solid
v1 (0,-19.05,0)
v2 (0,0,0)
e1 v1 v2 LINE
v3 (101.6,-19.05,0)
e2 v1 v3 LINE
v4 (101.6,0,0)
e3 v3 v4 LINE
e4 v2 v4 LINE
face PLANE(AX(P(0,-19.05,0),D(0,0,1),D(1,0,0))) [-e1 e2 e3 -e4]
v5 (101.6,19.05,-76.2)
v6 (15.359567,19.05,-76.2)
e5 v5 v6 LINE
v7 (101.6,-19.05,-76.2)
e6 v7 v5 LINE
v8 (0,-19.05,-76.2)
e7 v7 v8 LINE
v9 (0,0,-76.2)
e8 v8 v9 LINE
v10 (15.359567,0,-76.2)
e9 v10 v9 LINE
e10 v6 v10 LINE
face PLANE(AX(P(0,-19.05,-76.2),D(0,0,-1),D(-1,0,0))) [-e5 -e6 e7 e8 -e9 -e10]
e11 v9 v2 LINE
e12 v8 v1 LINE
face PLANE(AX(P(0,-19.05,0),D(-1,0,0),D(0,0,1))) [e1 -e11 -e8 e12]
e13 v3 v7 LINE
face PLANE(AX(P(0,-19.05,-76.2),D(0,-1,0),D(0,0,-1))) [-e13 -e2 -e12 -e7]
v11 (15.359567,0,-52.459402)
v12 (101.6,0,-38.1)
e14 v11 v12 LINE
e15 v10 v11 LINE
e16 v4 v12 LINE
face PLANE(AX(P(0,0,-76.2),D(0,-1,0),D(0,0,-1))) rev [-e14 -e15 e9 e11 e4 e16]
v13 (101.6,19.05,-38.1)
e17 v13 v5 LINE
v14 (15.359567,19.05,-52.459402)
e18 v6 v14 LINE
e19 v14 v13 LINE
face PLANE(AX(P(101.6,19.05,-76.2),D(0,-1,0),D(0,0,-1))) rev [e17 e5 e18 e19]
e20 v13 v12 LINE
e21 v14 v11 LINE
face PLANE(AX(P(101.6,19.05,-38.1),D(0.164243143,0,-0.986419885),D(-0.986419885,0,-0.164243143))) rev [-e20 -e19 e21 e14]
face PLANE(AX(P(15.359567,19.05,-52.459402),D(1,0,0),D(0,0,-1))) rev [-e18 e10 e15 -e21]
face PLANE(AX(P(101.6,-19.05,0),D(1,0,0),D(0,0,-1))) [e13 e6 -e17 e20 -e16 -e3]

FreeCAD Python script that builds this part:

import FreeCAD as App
import Part
import Sketcher
Q = App.Units.Quantity


def add_polygon(sketch, points):
    """Adds a closed chain of lines whose ends are joined by coincident constraints."""
    first, n = sketch.GeometryCount, len(points)
    for a, b in zip(points, points[1:] + points[:1]):
        sketch.addGeometry(Part.LineSegment(App.Vector(*a, 0), App.Vector(*b, 0)), False)
    for i in range(n):
        sketch.addConstraint(Sketcher.Constraint("Coincident", first + i, 2, first + (i + 1) % n, 1))

doc = App.newDocument("Part")
body = doc.addObject("PartDesign::Body", "Body")

# Sketch on XZ plane
sketch1 = body.newObject("Sketcher::SketchObject", "Sketch")
sketch1.AttachmentSupport = (doc.getObject("XZ_Plane"), [""])
sketch1.MapMode = "FlatFace"
add_polygon(sketch1, [(0, -76), (0, 0), (102, 0), (102, -76)])  # lines 0-3
sketch1.addConstraint(Sketcher.Constraint("Vertical", 0))
sketch1.addConstraint(Sketcher.Constraint("Horizontal", 1))
sketch1.addConstraint(Sketcher.Constraint("Vertical", 2))
sketch1.addConstraint(Sketcher.Constraint("Horizontal", 3))
sketch1.addConstraint(Sketcher.Constraint("Coincident", 0, 2, -1, 1))
sketch1.addConstraint(Sketcher.Constraint("DistanceX", 1, 1, 1, 2, Q("4 in")))
sketch1.addConstraint(Sketcher.Constraint("DistanceY", 0, 1, 0, 2, Q("3 in")))
pad1 = body.newObject("PartDesign::Pad", "Pad")
pad1.Profile = sketch1
pad1.Length = Q("0.75 in")

# Sketch on XZ plane
sketch2 = body.newObject("Sketcher::SketchObject", "Sketch001")
sketch2.AttachmentSupport = (doc.getObject("XZ_Plane"), [""])
sketch2.MapMode = "FlatFace"
add_polygon(sketch2, [(15, -52), (102, -38), (102, -76), (15, -76)])  # lines 0-3
sketch2.addConstraint(Sketcher.Constraint("Vertical", 1))
sketch2.addConstraint(Sketcher.Constraint("Horizontal", 2))
sketch2.addConstraint(Sketcher.Constraint("Vertical", 3))
sketch2.addConstraint(Sketcher.Constraint("DistanceY", 1, 2, 1, 1, Q("1.5 in")))
sketch2.addConstraint(Sketcher.Constraint("DistanceX", -1, 1, 0, 2, Q("4 in")))
sketch2.addConstraint(Sketcher.Constraint("DistanceY", 1, 2, -1, 1, Q("3 in")))
sketch2.addConstraint(Sketcher.Constraint("Distance", 0, Q("87.427712 mm")))
sketch2.addConstraint(Sketcher.Constraint("DistanceX", 2, 2, 2, 1, Q("86.240433 mm")))
pad2 = body.newObject("PartDesign::Pad", "Pad001")
pad2.Profile = sketch2
pad2.Length = Q("0.75 in")
pad2.Reversed = True

doc.recompute()
